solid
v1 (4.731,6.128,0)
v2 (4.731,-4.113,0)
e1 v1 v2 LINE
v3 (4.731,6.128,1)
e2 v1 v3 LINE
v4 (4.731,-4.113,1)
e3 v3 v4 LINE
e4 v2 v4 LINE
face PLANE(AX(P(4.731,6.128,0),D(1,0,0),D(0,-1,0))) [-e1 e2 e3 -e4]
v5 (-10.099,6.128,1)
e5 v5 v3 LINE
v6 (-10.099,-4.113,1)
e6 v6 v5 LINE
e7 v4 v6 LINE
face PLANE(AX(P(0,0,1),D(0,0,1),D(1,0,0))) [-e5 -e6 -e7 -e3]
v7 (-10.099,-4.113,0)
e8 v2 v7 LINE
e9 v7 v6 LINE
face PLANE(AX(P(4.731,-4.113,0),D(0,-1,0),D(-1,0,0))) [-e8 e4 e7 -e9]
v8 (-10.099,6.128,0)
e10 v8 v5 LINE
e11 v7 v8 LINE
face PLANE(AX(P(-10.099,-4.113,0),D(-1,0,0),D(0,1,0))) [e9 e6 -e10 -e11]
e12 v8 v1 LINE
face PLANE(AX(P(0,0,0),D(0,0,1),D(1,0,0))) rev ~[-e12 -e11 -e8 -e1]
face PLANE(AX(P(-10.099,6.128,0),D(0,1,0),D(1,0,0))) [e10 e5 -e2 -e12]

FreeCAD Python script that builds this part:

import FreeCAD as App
import Part
import Sketcher

V = App.Vector

doc = App.newDocument("Part")
body = doc.addObject("PartDesign::Body", "Body")

# Sketch on XY plane
sketch1 = doc.addObject("Sketcher::SketchObject", "Sketch")
body.addObject(sketch1)
sketch1.AttachmentSupport = (doc.XY_Plane, [""])
sketch1.MapMode = "FlatFace"
sketch1.addGeometry([
    Part.LineSegment(V(5, 6, 0), V(-10, 6, 0)),
    Part.LineSegment(V(-10, 6, 0), V(-10, -4, 0)),
    Part.LineSegment(V(-10, -4, 0), V(5, -4, 0)),
    Part.LineSegment(V(5, -4, 0), V(5, 6, 0)),
], False)
sketch1.addConstraint([
    Sketcher.Constraint("Coincident", 0, 2, 1, 1),
    Sketcher.Constraint("Coincident", 1, 2, 2, 1),
    Sketcher.Constraint("Coincident", 2, 2, 3, 1),
    Sketcher.Constraint("Coincident", 3, 2, 0, 1),
    Sketcher.Constraint("Horizontal", 0),
    Sketcher.Constraint("Vertical", 1),
    Sketcher.Constraint("Horizontal", 2),
    Sketcher.Constraint("Vertical", 3),
    Sketcher.Constraint("DistanceX", 0, 2, 0, 1, 14.83),
    Sketcher.Constraint("DistanceY", 1, 2, 1, 1, 10.241),
    Sketcher.Constraint("DistanceX", 0, 2, -1, 1, 10.099),
    Sketcher.Constraint("DistanceY", -1, 1, 0, 2, 6.128),
])
pad1 = doc.addObject("PartDesign::Pad", "Pad")
body.addObject(pad1)
pad1.Profile = sketch1
pad1.Length = 1

doc.recompute()
